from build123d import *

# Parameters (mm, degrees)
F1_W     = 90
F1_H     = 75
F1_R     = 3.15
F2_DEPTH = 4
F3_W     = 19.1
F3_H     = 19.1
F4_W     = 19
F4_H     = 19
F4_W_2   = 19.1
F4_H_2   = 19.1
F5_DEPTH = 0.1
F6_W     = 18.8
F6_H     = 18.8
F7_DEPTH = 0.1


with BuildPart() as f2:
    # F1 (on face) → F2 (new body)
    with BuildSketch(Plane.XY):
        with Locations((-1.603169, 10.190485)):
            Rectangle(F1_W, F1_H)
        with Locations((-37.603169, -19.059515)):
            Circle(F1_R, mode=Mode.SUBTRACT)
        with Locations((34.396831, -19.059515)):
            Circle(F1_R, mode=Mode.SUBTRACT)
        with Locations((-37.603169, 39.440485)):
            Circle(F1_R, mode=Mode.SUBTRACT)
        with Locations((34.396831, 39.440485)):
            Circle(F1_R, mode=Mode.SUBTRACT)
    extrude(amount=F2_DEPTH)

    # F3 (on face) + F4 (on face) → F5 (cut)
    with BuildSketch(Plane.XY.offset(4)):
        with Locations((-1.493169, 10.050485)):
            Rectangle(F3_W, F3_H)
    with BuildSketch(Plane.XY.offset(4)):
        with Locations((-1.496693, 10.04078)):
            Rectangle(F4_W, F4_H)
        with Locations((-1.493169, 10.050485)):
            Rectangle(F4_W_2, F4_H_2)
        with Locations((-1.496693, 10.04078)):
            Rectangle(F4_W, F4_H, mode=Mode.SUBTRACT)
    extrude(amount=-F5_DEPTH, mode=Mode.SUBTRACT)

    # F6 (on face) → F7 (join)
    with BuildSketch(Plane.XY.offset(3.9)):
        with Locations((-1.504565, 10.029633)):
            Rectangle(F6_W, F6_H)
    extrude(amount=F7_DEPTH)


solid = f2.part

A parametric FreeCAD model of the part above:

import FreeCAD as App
import Part
import Sketcher
from FreeCAD import Vector


def add_polygon(sketch, points):
    """Adds a closed chain of lines whose ends are joined by coincident constraints."""
    first, n = sketch.GeometryCount, len(points)
    for a, b in zip(points, points[1:] + points[:1]):
        sketch.addGeometry(Part.LineSegment(App.Vector(*a, 0), App.Vector(*b, 0)), False)
    for i in range(n):
        sketch.addConstraint(Sketcher.Constraint("Coincident", first + i, 2, first + (i + 1) % n, 1))

doc = App.newDocument("Part")
body = doc.addObject("PartDesign::Body", "Body")

sketch1 = body.newObject("Sketcher::SketchObject", "Sketch")
sketch1.AttachmentSupport = (doc.getObject("XY_Plane"), [""])
sketch1.MapMode = "FlatFace"
add_polygon(sketch1, [(-46.6, 47.7), (-46.6, -27.3), (43.4, -27.3), (43.4, 47.7)])
sketch1.addGeometry(Part.Circle(Vector(-37.6, -19.1, 0), Vector(0, 0, 1), 3.1), False)
sketch1.addGeometry(Part.Circle(Vector(34.4, -19.1, 0), Vector(0, 0, 1), 3.1), False)
sketch1.addGeometry(Part.Circle(Vector(-37.6, 39.4, 0), Vector(0, 0, 1), 3.1), False)
sketch1.addGeometry(Part.Circle(Vector(34.4, 39.4, 0), Vector(0, 0, 1), 3.1), False)
sketch1.addConstraint([
    Sketcher.Constraint("Vertical", 0),
    Sketcher.Constraint("Horizontal", 1),
    Sketcher.Constraint("Vertical", 2),
    Sketcher.Constraint("Horizontal", 3),
    Sketcher.Constraint("Equal", 4, 5),
    Sketcher.Constraint("Equal", 5, 6),
    Sketcher.Constraint("Equal", 6, 7),
    Sketcher.Constraint("Horizontal", 4, 3, 5, 3),
    Sketcher.Constraint("Horizontal", 6, 3, 7, 3),
    Sketcher.Constraint("Vertical", 4, 3, 6, 3),
    Sketcher.Constraint("Vertical", 5, 3, 7, 3),
    Sketcher.Constraint("Diameter", 4, 6.3),
    Sketcher.Constraint("DistanceX", 1, 1, 1, 2, 90.0),
    Sketcher.Constraint("DistanceY", 0, 2, 0, 1, 75.0),
    Sketcher.Constraint("DistanceX", 4, 3, 5, 3, 72.0),
    Sketcher.Constraint("DistanceX", 0, 2, 4, 3, 9.0),
    Sketcher.Constraint("DistanceY", 4, 3, 6, 3, 58.5),
    Sketcher.Constraint("DistanceY", 0, 2, 4, 3, 8.25),
    Sketcher.Constraint("DistanceX", 4, 3, -1, 1, 37.603169),
    Sketcher.Constraint("DistanceY", 4, 3, -1, 1, 19.059515),
])
pad1 = body.newObject("PartDesign::Pad", "Pad")
pad1.Profile = sketch1
pad1.Length = 4

sketch2 = body.newObject("Sketcher::SketchObject", "Sketch001")
sketch2.AttachmentSupport = (doc.getObject("XY_Plane"), [""])
sketch2.MapMode = "FlatFace"
sketch2.AttachmentOffset = App.Placement(Vector(0, 0, 4), App.Rotation())
add_polygon(sketch2, [(-11, 20), (-11, 1), (8, 1), (8, 20)])
sketch2.addConstraint([
    Sketcher.Constraint("Vertical", 0),
    Sketcher.Constraint("Horizontal", 1),
    Sketcher.Constraint("Vertical", 2),
    Sketcher.Constraint("Horizontal", 3),
    Sketcher.Constraint("Equal", 3, 0),
    Sketcher.Constraint("DistanceX", 1, 1, 1, 2, 19.1),
    Sketcher.Constraint("DistanceX", 0, 2, -1, 1, 11.043169),
    Sketcher.Constraint("DistanceY", -1, 1, 0, 2, 0.500485),
])
pocket1 = body.newObject("PartDesign::Pocket", "Pocket")
pocket1.Profile = sketch2
pocket1.Length = 0.1

sketch3 = body.newObject("Sketcher::SketchObject", "Sketch002")
sketch3.AttachmentSupport = (doc.getObject("XY_Plane"), [""])
sketch3.MapMode = "FlatFace"
sketch3.AttachmentOffset = App.Placement(Vector(0, 0, 3.9), App.Rotation())
add_polygon(sketch3, [(-11, 19), (-11, 1), (8, 1), (8, 19)])
sketch3.addConstraint([
    Sketcher.Constraint("Vertical", 0),
    Sketcher.Constraint("Horizontal", 1),
    Sketcher.Constraint("Vertical", 2),
    Sketcher.Constraint("Horizontal", 3),
    Sketcher.Constraint("Equal", 3, 0),
    Sketcher.Constraint("DistanceX", 1, 1, 1, 2, 18.8),
    Sketcher.Constraint("DistanceX", 0, 2, -1, 1, 10.904565),
    Sketcher.Constraint("DistanceY", -1, 1, 0, 2, 0.629633),
])
pad2 = body.newObject("PartDesign::Pad", "Pad001")
pad2.Profile = sketch3
pad2.Length = 0.1

doc.recompute()
